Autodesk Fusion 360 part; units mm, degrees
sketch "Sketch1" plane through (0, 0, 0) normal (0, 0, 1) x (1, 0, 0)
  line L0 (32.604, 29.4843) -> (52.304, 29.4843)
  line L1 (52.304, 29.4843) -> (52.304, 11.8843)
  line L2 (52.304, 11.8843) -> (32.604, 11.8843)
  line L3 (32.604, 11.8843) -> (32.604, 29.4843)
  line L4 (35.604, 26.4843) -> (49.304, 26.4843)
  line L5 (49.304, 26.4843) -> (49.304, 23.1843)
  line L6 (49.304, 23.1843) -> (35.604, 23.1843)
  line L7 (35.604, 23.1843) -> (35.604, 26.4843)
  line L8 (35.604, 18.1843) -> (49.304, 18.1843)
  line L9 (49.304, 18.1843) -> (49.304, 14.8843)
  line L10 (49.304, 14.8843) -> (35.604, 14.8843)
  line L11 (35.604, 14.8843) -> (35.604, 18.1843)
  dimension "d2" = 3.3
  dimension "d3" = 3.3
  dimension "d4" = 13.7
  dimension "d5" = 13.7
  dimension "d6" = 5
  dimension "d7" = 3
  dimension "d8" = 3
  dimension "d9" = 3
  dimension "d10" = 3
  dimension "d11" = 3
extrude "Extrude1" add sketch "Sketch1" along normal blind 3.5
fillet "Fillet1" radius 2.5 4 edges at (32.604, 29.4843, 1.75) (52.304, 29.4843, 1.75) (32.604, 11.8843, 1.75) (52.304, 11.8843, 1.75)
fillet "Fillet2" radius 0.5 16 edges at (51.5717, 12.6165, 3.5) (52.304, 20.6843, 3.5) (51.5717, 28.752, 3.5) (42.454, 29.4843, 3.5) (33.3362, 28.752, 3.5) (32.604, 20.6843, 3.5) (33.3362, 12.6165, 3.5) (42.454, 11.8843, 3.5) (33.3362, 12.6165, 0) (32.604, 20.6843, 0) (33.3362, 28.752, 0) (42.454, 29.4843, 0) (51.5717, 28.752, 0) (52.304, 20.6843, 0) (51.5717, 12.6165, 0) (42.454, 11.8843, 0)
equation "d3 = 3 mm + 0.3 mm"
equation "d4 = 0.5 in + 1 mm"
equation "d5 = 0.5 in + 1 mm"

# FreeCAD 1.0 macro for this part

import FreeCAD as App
import Part
import Sketcher
from FreeCAD import Vector
Q = App.Units.Quantity


def edges_at(feature, points):
    """Names of the edges that pass closest to the given points."""
    edges = feature.Shape.Edges
    near = lambda p: min(range(len(edges)), key=lambda i: edges[i].distToShape(Part.Vertex(*p))[0])
    return sorted({f"Edge{near(p) + 1}" for p in points})

doc = App.newDocument("Part")
body = doc.addObject("PartDesign::Body", "Body")

# Sketch on XY plane
sketch1 = doc.addObject("Sketcher::SketchObject", "Sketch")
body.addObject(sketch1)
sketch1.AttachmentSupport = (doc.XY_Plane, [""])
sketch1.MapMode = "FlatFace"
sketch1.addGeometry(Part.LineSegment(Vector(52.3, 29.5, 0), Vector(32.6, 29.5, 0)), False)
sketch1.addGeometry(Part.LineSegment(Vector(32.6, 29.5, 0), Vector(32.6, 11.9, 0)), False)
sketch1.addGeometry(Part.LineSegment(Vector(32.6, 11.9, 0), Vector(52.3, 11.9, 0)), False)
sketch1.addGeometry(Part.LineSegment(Vector(52.3, 11.9, 0), Vector(52.3, 29.5, 0)), False)
sketch1.addGeometry(Part.LineSegment(Vector(35.6, 14.9, 0), Vector(35.6, 18.2, 0)), False)
sketch1.addGeometry(Part.LineSegment(Vector(35.6, 18.2, 0), Vector(49.3, 18.2, 0)), False)
sketch1.addGeometry(Part.LineSegment(Vector(49.3, 18.2, 0), Vector(49.3, 14.9, 0)), False)
sketch1.addGeometry(Part.LineSegment(Vector(49.3, 14.9, 0), Vector(35.6, 14.9, 0)), False)
sketch1.addGeometry(Part.LineSegment(Vector(35.6, 23.2, 0), Vector(35.6, 26.5, 0)), False)
sketch1.addGeometry(Part.LineSegment(Vector(35.6, 26.5, 0), Vector(49.3, 26.5, 0)), False)
sketch1.addGeometry(Part.LineSegment(Vector(49.3, 26.5, 0), Vector(49.3, 23.2, 0)), False)
sketch1.addGeometry(Part.LineSegment(Vector(49.3, 23.2, 0), Vector(35.6, 23.2, 0)), False)
sketch1.addConstraint(Sketcher.Constraint("Coincident", 0, 2, 1, 1))
sketch1.addConstraint(Sketcher.Constraint("Coincident", 1, 2, 2, 1))
sketch1.addConstraint(Sketcher.Constraint("Coincident", 2, 2, 3, 1))
sketch1.addConstraint(Sketcher.Constraint("Coincident", 3, 2, 0, 1))
sketch1.addConstraint(Sketcher.Constraint("Coincident", 4, 2, 5, 1))
sketch1.addConstraint(Sketcher.Constraint("Coincident", 5, 2, 6, 1))
sketch1.addConstraint(Sketcher.Constraint("Coincident", 6, 2, 7, 1))
sketch1.addConstraint(Sketcher.Constraint("Coincident", 7, 2, 4, 1))
sketch1.addConstraint(Sketcher.Constraint("Coincident", 8, 2, 9, 1))
sketch1.addConstraint(Sketcher.Constraint("Coincident", 9, 2, 10, 1))
sketch1.addConstraint(Sketcher.Constraint("Coincident", 10, 2, 11, 1))
sketch1.addConstraint(Sketcher.Constraint("Coincident", 11, 2, 8, 1))
sketch1.addConstraint(Sketcher.Constraint("Horizontal", 0))
sketch1.addConstraint(Sketcher.Constraint("Vertical", 1))
sketch1.addConstraint(Sketcher.Constraint("Horizontal", 2))
sketch1.addConstraint(Sketcher.Constraint("Vertical", 3))
sketch1.addConstraint(Sketcher.Constraint("Vertical", 4))
sketch1.addConstraint(Sketcher.Constraint("Horizontal", 5))
sketch1.addConstraint(Sketcher.Constraint("Vertical", 6))
sketch1.addConstraint(Sketcher.Constraint("Horizontal", 7))
sketch1.addConstraint(Sketcher.Constraint("Vertical", 8))
sketch1.addConstraint(Sketcher.Constraint("Horizontal", 9))
sketch1.addConstraint(Sketcher.Constraint("Vertical", 10))
sketch1.addConstraint(Sketcher.Constraint("Horizontal", 11))
sketch1.addConstraint(Sketcher.Constraint("Vertical", 7, 2, 8, 2))
sketch1.addConstraint(Sketcher.Constraint("Vertical", 6, 2, 9, 2))
sketch1.addConstraint(Sketcher.Constraint("Equal", 6, 8))
sketch1.addConstraint(Sketcher.Constraint("DistanceX", 5, 1, 5, 2, Q("13.7 mm")))
sketch1.addConstraint(Sketcher.Constraint("DistanceY", 4, 1, 4, 2, Q("3.3 mm")))
sketch1.addConstraint(Sketcher.Constraint("DistanceX", 1, 2, 4, 2, Q("3 mm")))
sketch1.addConstraint(Sketcher.Constraint("DistanceX", 5, 2, 2, 2, Q("3 mm")))
sketch1.addConstraint(Sketcher.Constraint("DistanceY", 2, 2, 6, 2, Q("3 mm")))
sketch1.addConstraint(Sketcher.Constraint("DistanceY", 8, 2, 0, 2, Q("3 mm")))
sketch1.addConstraint(Sketcher.Constraint("DistanceY", 5, 2, 10, 2, Q("5 mm")))
sketch1.addConstraint(Sketcher.Constraint("DistanceX", -1, 1, 0, 2, Q("32.604 mm")))
sketch1.addConstraint(Sketcher.Constraint("DistanceY", -1, 1, 0, 2, Q("29.4843 mm")))
pad1 = doc.addObject("PartDesign::Pad", "Pad")
body.addObject(pad1)
pad1.Profile = sketch1
pad1.Length = 3.5
doc.recompute()

fillet = doc.addObject("PartDesign::Fillet", "Fillet")
body.addObject(fillet)
fillet.Base = (pad1, edges_at(pad1, [
    (32.604, 29.484, 1.75),
    (52.304, 29.484, 1.75),
    (32.604, 11.884, 1.75),
    (52.304, 11.884, 1.75),
]))
fillet.Radius = 2.5
doc.recompute()

fillet2 = doc.addObject("PartDesign::Fillet", "Fillet001")
body.addObject(fillet2)
fillet2.Base = (fillet, edges_at(fillet, [
    (51.572, 12.617, 3.5),
    (52.304, 20.684, 3.5),
    (51.572, 28.752, 3.5),
    (42.454, 29.484, 3.5),
    (33.336, 28.752, 3.5),
    (32.604, 20.684, 3.5),
    (33.336, 12.617, 3.5),
    (42.454, 11.884, 3.5),
    (33.336, 12.617, 0),
    (32.604, 20.684, 0),
    (33.336, 28.752, 0),
    (42.454, 29.484, 0),
    (51.572, 28.752, 0),
    (52.304, 20.684, 0),
    (51.572, 12.617, 0),
    (42.454, 11.884, 0),
]))
fillet2.Radius = 0.5

doc.recompute()
